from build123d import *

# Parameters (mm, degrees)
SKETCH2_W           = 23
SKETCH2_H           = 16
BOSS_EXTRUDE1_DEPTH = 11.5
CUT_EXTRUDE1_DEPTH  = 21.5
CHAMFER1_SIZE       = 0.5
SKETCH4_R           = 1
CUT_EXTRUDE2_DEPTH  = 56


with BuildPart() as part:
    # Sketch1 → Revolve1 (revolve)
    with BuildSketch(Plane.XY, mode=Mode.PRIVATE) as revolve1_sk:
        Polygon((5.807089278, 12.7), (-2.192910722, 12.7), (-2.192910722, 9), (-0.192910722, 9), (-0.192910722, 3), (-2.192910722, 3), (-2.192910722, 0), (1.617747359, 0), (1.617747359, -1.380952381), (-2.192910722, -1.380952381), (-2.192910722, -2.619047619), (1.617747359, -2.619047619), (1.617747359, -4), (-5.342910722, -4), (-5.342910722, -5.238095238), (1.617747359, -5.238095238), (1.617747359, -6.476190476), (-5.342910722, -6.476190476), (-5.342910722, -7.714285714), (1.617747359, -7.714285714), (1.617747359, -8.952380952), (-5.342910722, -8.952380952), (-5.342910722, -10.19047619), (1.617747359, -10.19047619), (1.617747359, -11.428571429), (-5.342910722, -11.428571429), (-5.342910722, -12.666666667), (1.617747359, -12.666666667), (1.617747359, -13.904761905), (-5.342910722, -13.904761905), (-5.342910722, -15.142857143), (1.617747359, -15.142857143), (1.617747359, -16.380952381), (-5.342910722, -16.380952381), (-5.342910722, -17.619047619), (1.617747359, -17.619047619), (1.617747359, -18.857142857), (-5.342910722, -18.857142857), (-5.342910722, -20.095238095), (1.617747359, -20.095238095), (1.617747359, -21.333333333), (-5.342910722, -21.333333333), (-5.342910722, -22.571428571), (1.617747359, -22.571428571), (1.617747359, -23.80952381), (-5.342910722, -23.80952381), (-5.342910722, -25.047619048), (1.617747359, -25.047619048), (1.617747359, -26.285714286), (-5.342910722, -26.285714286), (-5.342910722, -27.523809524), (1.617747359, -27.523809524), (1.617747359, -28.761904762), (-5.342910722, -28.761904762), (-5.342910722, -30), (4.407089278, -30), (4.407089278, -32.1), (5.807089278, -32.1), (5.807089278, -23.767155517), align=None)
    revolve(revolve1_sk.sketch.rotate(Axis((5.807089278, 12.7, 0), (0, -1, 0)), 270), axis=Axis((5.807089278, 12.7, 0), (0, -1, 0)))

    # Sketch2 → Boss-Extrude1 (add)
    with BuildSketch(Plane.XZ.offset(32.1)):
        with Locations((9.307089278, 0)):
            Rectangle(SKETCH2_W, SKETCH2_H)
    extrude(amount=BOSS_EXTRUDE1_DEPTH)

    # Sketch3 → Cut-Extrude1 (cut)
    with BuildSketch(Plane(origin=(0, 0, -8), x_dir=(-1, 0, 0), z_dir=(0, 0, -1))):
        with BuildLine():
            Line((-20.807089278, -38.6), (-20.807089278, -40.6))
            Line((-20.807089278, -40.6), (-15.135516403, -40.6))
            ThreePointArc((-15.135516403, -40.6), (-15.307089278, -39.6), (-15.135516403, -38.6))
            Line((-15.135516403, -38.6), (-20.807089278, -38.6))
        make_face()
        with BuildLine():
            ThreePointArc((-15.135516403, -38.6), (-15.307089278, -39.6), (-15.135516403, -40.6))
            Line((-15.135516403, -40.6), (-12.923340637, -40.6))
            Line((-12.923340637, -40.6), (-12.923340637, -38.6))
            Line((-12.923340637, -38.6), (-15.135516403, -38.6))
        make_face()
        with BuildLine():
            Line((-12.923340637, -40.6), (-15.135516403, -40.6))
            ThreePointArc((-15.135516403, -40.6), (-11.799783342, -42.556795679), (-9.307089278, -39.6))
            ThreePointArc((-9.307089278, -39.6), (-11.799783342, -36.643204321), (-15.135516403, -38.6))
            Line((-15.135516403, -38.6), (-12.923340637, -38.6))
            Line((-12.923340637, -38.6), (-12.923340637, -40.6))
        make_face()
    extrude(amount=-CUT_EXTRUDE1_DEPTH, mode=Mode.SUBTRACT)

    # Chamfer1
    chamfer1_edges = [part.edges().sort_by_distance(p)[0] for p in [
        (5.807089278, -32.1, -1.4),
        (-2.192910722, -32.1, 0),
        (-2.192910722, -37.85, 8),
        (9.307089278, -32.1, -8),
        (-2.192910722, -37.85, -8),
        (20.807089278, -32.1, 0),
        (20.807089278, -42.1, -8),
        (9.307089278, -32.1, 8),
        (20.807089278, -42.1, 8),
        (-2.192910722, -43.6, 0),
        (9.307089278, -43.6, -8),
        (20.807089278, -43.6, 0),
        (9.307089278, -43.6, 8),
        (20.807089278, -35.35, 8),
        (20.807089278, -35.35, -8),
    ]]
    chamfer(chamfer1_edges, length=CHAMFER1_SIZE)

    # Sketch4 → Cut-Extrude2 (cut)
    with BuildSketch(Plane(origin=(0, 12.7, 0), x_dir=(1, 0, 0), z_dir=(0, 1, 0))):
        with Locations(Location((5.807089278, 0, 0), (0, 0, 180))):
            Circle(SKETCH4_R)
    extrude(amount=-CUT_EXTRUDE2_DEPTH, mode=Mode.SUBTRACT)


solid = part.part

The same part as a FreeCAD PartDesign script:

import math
import FreeCAD as App
import Part
import Sketcher
from FreeCAD import Vector
Q = App.Units.Quantity


def edges_at(feature, points):
    """Names of the edges that pass closest to the given points."""
    edges = feature.Shape.Edges
    near = lambda p: min(range(len(edges)), key=lambda i: edges[i].distToShape(Part.Vertex(*p))[0])
    return sorted({f"Edge{near(p) + 1}" for p in points})


def add_polygon(sketch, points):
    """Adds a closed chain of lines whose ends are joined by coincident constraints."""
    first, n = sketch.GeometryCount, len(points)
    for a, b in zip(points, points[1:] + points[:1]):
        sketch.addGeometry(Part.LineSegment(App.Vector(*a, 0), App.Vector(*b, 0)), False)
    for i in range(n):
        sketch.addConstraint(Sketcher.Constraint("Coincident", first + i, 2, first + (i + 1) % n, 1))

doc = App.newDocument("Part")
body = doc.addObject("PartDesign::Body", "Body")

sketch1 = body.newObject("Sketcher::SketchObject", "Sketch")
sketch1.AttachmentSupport = (doc.getObject("XY_Plane"), [""])
sketch1.MapMode = "FlatFace"
add_polygon(sketch1, [(5.8, 12.7), (-2.2, 12.7), (-2.2, 9), (-0.2, 9), (-0.2, 3), (-2.2, 3), (-2.2, 0), (1.6, 0), (1.6, -1.4), (-2.2, -1.4), (-2.2, -2.6), (1.6, -2.6), (1.6, -4), (-5.3, -4), (-5.3, -5.2), (1.6, -5.2), (1.6, -6.5), (-5.3, -6.5), (-5.3, -7.7), (1.6, -7.7), (1.6, -9), (-5.3, -9), (-5.3, -10.2), (1.6, -10.2), (1.6, -11.4), (-5.3, -11.4), (-5.3, -12.7), (1.6, -12.7), (1.6, -13.9), (-5.3, -13.9), (-5.3, -15.1), (1.6, -15.1), (1.6, -16.4), (-5.3, -16.4), (-5.3, -17.6), (1.6, -17.6), (1.6, -18.9), (-5.3, -18.9), (-5.3, -20.1), (1.6, -20.1), (1.6, -21.3), (-5.3, -21.3), (-5.3, -22.6), (1.6, -22.6), (1.6, -23.8), (-5.3, -23.8), (-5.3, -25), (1.6, -25), (1.6, -26.3), (-5.3, -26.3), (-5.3, -27.5), (1.6, -27.5), (1.6, -28.8), (-5.3, -28.8), (-5.3, -30), (4.4, -30), (4.4, -32.1), (5.8, -32.1)])
sketch1.addGeometry(Part.LineSegment(Vector(5.8, 12.7, 0), Vector(5.8, -32.1, 0)), True)
sketch1.addConstraint([
    Sketcher.Constraint("Horizontal", 0),
    Sketcher.Constraint("Vertical", 1),
    Sketcher.Constraint("Horizontal", 2),
    Sketcher.Constraint("Vertical", 3),
    Sketcher.Constraint("Horizontal", 4),
    Sketcher.Constraint("Vertical", 5),
    Sketcher.Constraint("Horizontal", 6),
    Sketcher.Constraint("Vertical", 7),
    Sketcher.Constraint("Horizontal", 8),
    Sketcher.Constraint("Vertical", 9),
    Sketcher.Constraint("Horizontal", 10),
    Sketcher.Constraint("Vertical", 11),
    Sketcher.Constraint("Horizontal", 12),
    Sketcher.Constraint("Vertical", 13),
    Sketcher.Constraint("Horizontal", 14),
    Sketcher.Constraint("Vertical", 15),
    Sketcher.Constraint("Horizontal", 16),
    Sketcher.Constraint("Vertical", 17),
    Sketcher.Constraint("Horizontal", 18),
    Sketcher.Constraint("Vertical", 19),
    Sketcher.Constraint("Horizontal", 20),
    Sketcher.Constraint("Vertical", 21),
    Sketcher.Constraint("Horizontal", 22),
    Sketcher.Constraint("Vertical", 23),
    Sketcher.Constraint("Horizontal", 24),
    Sketcher.Constraint("Vertical", 25),
    Sketcher.Constraint("Horizontal", 26),
    Sketcher.Constraint("Vertical", 27),
    Sketcher.Constraint("Horizontal", 28),
    Sketcher.Constraint("Vertical", 29),
    Sketcher.Constraint("Horizontal", 30),
    Sketcher.Constraint("Vertical", 31),
    Sketcher.Constraint("Horizontal", 32),
    Sketcher.Constraint("Vertical", 33),
    Sketcher.Constraint("Horizontal", 34),
    Sketcher.Constraint("Vertical", 35),
    Sketcher.Constraint("Horizontal", 36),
    Sketcher.Constraint("Vertical", 37),
    Sketcher.Constraint("Horizontal", 38),
    Sketcher.Constraint("Vertical", 39),
    Sketcher.Constraint("Horizontal", 40),
    Sketcher.Constraint("Vertical", 41),
    Sketcher.Constraint("Horizontal", 42),
    Sketcher.Constraint("Vertical", 43),
    Sketcher.Constraint("Horizontal", 44),
    Sketcher.Constraint("Vertical", 45),
    Sketcher.Constraint("Horizontal", 46),
    Sketcher.Constraint("Vertical", 47),
    Sketcher.Constraint("Horizontal", 48),
    Sketcher.Constraint("Vertical", 49),
    Sketcher.Constraint("Horizontal", 50),
    Sketcher.Constraint("Vertical", 51),
    Sketcher.Constraint("Horizontal", 52),
    Sketcher.Constraint("Vertical", 53),
    Sketcher.Constraint("Horizontal", 54),
    Sketcher.Constraint("Vertical", 55),
    Sketcher.Constraint("Horizontal", 56),
    Sketcher.Constraint("Vertical", 57),
    Sketcher.Constraint("Vertical", 58),
    Sketcher.Constraint("Coincident", 58, 1, 57, 2),
    Sketcher.Constraint("PointOnObject", 5, 2, -1),
    Sketcher.Constraint("Horizontal", 55, 2, 58, 2),
    Sketcher.Constraint("Vertical", 1, 2, 4, 2),
    Sketcher.Constraint("Vertical", 5, 2, 8, 2),
    Sketcher.Constraint("Vertical", 7, 2, 10, 2),
    Sketcher.Constraint("Vertical", 11, 2, 14, 2),
    Sketcher.Constraint("Vertical", 13, 2, 16, 2),
    Sketcher.Constraint("Vertical", 15, 2, 18, 2),
    Sketcher.Constraint("Vertical", 17, 2, 20, 2),
    Sketcher.Constraint("Vertical", 19, 2, 22, 2),
    Sketcher.Constraint("Vertical", 21, 2, 24, 2),
    Sketcher.Constraint("Vertical", 23, 2, 26, 2),
    Sketcher.Constraint("Vertical", 25, 2, 28, 2),
    Sketcher.Constraint("Vertical", 27, 2, 30, 2),
    Sketcher.Constraint("Vertical", 29, 2, 32, 2),
    Sketcher.Constraint("Vertical", 31, 2, 34, 2),
    Sketcher.Constraint("Vertical", 33, 2, 36, 2),
    Sketcher.Constraint("Vertical", 35, 2, 38, 2),
    Sketcher.Constraint("Vertical", 37, 2, 40, 2),
    Sketcher.Constraint("Vertical", 39, 2, 42, 2),
    Sketcher.Constraint("Vertical", 41, 2, 44, 2),
    Sketcher.Constraint("Vertical", 43, 2, 46, 2),
    Sketcher.Constraint("Vertical", 45, 2, 48, 2),
    Sketcher.Constraint("Vertical", 47, 2, 50, 2),
    Sketcher.Constraint("Vertical", 49, 2, 52, 2),
    Sketcher.Constraint("Equal", 7, 11),
    Sketcher.Constraint("Equal", 9, 13),
    Sketcher.Constraint("Equal", 13, 15),
    Sketcher.Constraint("Equal", 15, 17),
    Sketcher.Constraint("Equal", 17, 19),
    Sketcher.Constraint("Equal", 19, 21),
    Sketcher.Constraint("Equal", 21, 23),
    Sketcher.Constraint("Equal", 23, 25),
    Sketcher.Constraint("Equal", 25, 27),
    Sketcher.Constraint("Equal", 27, 29),
    Sketcher.Constraint("Equal", 29, 31),
    Sketcher.Constraint("Equal", 31, 33),
    Sketcher.Constraint("Equal", 33, 35),
    Sketcher.Constraint("Equal", 35, 37),
    Sketcher.Constraint("Equal", 37, 39),
    Sketcher.Constraint("Equal", 39, 41),
    Sketcher.Constraint("Equal", 41, 43),
    Sketcher.Constraint("Equal", 43, 45),
    Sketcher.Constraint("Equal", 45, 47),
    Sketcher.Constraint("Equal", 47, 49),
    Sketcher.Constraint("Equal", 49, 51),
    Sketcher.Constraint("Equal", 51, 53),
    Sketcher.Constraint("DistanceX", 0, 2, 0, 1, Q("8 mm")),
    Sketcher.Constraint("DistanceX", 2, 1, 2, 2, Q("2 mm")),
    Sketcher.Constraint("DistanceY", 3, 2, 3, 1, Q("6 mm")),
    Sketcher.Constraint("DistanceY", 5, 2, 5, 1, Q("3 mm")),
    Sketcher.Constraint("DistanceX", 56, 1, 56, 2, Q("1.4 mm")),
    Sketcher.Constraint("DistanceY", 1, 2, 1, 1, Q("3.7 mm")),
    Sketcher.Constraint("DistanceY", 55, 2, 55, 1, Q("2.1 mm")),
    Sketcher.Constraint("DistanceY", 57, 1, 57, 2, Q("44.8 mm")),
    Sketcher.Constraint("DistanceY", 11, 2, -1, 1, Q("4 mm")),
    Sketcher.Constraint("DistanceX", 54, 1, 54, 2, Q("9.75 mm")),
    Sketcher.Constraint("DistanceX", 6, 1, 6, 2, Q("3.810658 mm")),
    Sketcher.Constraint("DistanceX", 0, 2, -1, 1, Q("2.192911 mm")),
])
revolution = body.newObject("PartDesign::Revolution", "Revolution")
revolution.Profile = sketch1
revolution.ReferenceAxis = (sketch1, ["Axis0"])
revolution.Angle = 360

sketch2 = body.newObject("Sketcher::SketchObject", "Sketch001")
sketch2.AttachmentSupport = (doc.getObject("XZ_Plane"), [""])
sketch2.MapMode = "FlatFace"
sketch2.AttachmentOffset = App.Placement(Vector(0, 0, 32.1), App.Rotation())
add_polygon(sketch2, [(-2, 8), (-2, -8), (21, -8), (21, 8)])
sketch2.addConstraint([
    Sketcher.Constraint("Vertical", 0),
    Sketcher.Constraint("Horizontal", 1),
    Sketcher.Constraint("Vertical", 2),
    Sketcher.Constraint("Horizontal", 3),
    Sketcher.Constraint("DistanceX", 1, 1, 1, 2, Q("23 mm")),
    Sketcher.Constraint("DistanceY", 0, 2, 0, 1, Q("16 mm")),
    Sketcher.Constraint("DistanceY", 0, 2, -1, 1, Q("8 mm")),
    Sketcher.Constraint("DistanceX", 0, 2, -1, 1, Q("2.192911 mm")),
])
pad1 = body.newObject("PartDesign::Pad", "Pad")
pad1.Profile = sketch2
pad1.Length = 11.5

sketch3 = body.newObject("Sketcher::SketchObject", "Sketch002")
sketch3.AttachmentSupport = (doc.getObject("XY_Plane"), [""])
sketch3.MapMode = "FlatFace"
sketch3.AttachmentOffset = App.Placement(Vector(0, 0, -8), App.Rotation())
sketch3.addGeometry([
    Part.LineSegment(Vector(20.8, -40.6, 0), Vector(15.1, -40.6, 0)),
    Part.ArcOfCircle(Part.Circle(Vector(12.3, -39.6, 0), Vector(0, 0, 1), 3), math.radians(180), math.radians(341)),
    Part.ArcOfCircle(Part.Circle(Vector(12.3, -39.6, 0), Vector(0, 0, 1), 3), math.radians(19), math.radians(180)),
    Part.LineSegment(Vector(15.1, -38.6, 0), Vector(20.8, -38.6, 0)),
    Part.LineSegment(Vector(20.8, -38.6, 0), Vector(20.8, -40.6, 0)),
], False)
sketch3.addConstraint([
    Sketcher.Constraint("Coincident", 0, 2, 1, 2),
    Sketcher.Constraint("Tangent", 1, 1, 2, 2),
    Sketcher.Constraint("Coincident", 2, 1, 3, 1),
    Sketcher.Constraint("Coincident", 3, 2, 4, 1),
    Sketcher.Constraint("Coincident", 4, 2, 0, 1),
    Sketcher.Constraint("Horizontal", 0),
    Sketcher.Constraint("Horizontal", 3),
    Sketcher.Constraint("Vertical", 4),
    Sketcher.Constraint("Equal", 1, 2),
    Sketcher.Constraint("Horizontal", 2, 3, 1, 1),
    Sketcher.Constraint("Vertical", 0, 2, 2, 1),
    Sketcher.Constraint("Radius", 1, Q("3 mm")),
    Sketcher.Constraint("DistanceY", 4, 2, 4, 1, Q("2 mm")),
    Sketcher.Constraint("DistanceY", 1, 3, -1, 1, Q("39.6 mm")),
    Sketcher.Constraint("DistanceX", 1, 3, 3, 2, Q("8.5 mm")),
    Sketcher.Constraint("DistanceX", -1, 1, 1, 3, Q("12.307089 mm")),
])
pocket1 = body.newObject("PartDesign::Pocket", "Pocket")
pocket1.Profile = sketch3
pocket1.Length = 21.5
pocket1.Reversed = True
doc.recompute()

chamfer = body.newObject("PartDesign::Chamfer", "Chamfer")
chamfer.Base = (pocket1, edges_at(pocket1, [
    (5.807, -32.1, -1.4),
    (-2.193, -32.1, 0),
    (-2.193, -37.85, 8),
    (9.307, -32.1, -8),
    (-2.193, -37.85, -8),
    (20.807, -32.1, 0),
    (20.807, -42.1, -8),
    (9.307, -32.1, 8),
    (20.807, -42.1, 8),
    (-2.193, -43.6, 0),
    (9.307, -43.6, -8),
    (20.807, -43.6, 0),
    (9.307, -43.6, 8),
    (20.807, -35.35, 8),
    (20.807, -35.35, -8),
]))
chamfer.Size = 0.5

sketch4 = body.newObject("Sketcher::SketchObject", "Sketch003")
sketch4.AttachmentSupport = (doc.getObject("XZ_Plane"), [""])
sketch4.MapMode = "FlatFace"
sketch4.AttachmentOffset = App.Placement(Vector(0, 0, -12.7), App.Rotation())
sketch4.addGeometry(Part.Circle(Vector(5.8, 0, 0), Vector(0, 0, 1), 1), False)
sketch4.addConstraint([
    Sketcher.Constraint("PointOnObject", 0, 3, -1),
    Sketcher.Constraint("Diameter", 0, Q("2 mm")),
    Sketcher.Constraint("DistanceX", -1, 1, 0, 3, Q("5.807089 mm")),
])
pocket2 = body.newObject("PartDesign::Pocket", "Pocket001")
pocket2.Profile = sketch4
pocket2.Length = 56
pocket2.Reversed = True

doc.recompute()
